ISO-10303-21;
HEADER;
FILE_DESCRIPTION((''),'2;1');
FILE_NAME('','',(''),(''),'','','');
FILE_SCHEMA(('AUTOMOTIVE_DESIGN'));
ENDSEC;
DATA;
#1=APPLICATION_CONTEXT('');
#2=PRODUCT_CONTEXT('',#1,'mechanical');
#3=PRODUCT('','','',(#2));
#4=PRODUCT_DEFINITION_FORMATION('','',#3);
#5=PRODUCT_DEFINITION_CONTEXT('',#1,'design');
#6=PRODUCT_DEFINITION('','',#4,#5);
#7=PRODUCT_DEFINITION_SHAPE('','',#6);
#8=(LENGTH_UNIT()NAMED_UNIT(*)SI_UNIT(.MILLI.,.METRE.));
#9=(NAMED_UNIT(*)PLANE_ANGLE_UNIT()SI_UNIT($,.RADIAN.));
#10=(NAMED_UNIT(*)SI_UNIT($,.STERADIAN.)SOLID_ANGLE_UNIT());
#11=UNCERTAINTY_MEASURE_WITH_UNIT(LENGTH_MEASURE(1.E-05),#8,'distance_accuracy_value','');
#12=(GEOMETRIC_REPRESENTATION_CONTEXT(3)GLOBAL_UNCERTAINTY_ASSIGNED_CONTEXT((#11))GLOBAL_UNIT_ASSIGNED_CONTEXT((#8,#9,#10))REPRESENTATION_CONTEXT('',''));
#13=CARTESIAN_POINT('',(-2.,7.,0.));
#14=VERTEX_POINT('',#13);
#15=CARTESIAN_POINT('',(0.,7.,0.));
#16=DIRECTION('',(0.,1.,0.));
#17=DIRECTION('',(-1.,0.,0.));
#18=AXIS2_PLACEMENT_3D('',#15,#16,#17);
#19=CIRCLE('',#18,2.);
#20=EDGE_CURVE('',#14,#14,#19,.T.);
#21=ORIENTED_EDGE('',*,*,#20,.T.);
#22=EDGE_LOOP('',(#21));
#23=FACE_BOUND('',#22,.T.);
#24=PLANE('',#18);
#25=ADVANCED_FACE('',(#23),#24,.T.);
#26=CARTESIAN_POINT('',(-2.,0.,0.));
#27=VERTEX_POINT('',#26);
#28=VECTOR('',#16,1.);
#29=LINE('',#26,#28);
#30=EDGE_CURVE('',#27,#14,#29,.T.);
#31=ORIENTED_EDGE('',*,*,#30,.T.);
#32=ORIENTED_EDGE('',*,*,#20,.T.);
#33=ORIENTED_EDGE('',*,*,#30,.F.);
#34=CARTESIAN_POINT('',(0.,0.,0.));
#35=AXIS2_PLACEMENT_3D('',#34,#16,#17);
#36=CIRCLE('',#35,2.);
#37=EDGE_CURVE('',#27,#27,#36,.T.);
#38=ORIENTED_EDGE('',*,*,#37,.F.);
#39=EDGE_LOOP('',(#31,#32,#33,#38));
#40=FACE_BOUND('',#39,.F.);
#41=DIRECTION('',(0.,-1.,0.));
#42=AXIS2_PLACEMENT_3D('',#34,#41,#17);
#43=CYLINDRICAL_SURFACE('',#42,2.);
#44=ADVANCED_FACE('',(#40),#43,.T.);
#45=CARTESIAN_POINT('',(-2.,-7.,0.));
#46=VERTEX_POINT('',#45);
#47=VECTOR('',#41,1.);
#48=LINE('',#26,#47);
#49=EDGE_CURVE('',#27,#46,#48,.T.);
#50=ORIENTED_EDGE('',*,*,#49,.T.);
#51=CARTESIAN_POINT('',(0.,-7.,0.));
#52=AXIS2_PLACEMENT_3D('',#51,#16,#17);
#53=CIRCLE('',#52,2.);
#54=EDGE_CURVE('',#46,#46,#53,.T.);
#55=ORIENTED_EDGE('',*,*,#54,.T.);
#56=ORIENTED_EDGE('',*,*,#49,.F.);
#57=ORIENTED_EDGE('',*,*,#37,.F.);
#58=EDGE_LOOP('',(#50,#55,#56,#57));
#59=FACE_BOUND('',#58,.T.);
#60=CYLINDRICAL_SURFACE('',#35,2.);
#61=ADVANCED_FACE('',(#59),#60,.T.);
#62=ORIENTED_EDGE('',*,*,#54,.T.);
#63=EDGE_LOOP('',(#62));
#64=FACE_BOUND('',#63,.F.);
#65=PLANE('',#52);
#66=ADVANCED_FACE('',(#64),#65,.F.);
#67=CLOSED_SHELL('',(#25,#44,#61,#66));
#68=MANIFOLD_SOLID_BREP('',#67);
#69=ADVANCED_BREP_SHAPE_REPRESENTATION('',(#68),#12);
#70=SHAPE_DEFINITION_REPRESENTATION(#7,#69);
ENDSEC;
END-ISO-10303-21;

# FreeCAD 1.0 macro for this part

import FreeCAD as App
import Part
import Sketcher

V = App.Vector

doc = App.newDocument("Part")
body = doc.addObject("PartDesign::Body", "Body")

# Sketch on XZ plane
sketch1 = doc.addObject("Sketcher::SketchObject", "Sketch")
body.addObject(sketch1)
sketch1.AttachmentSupport = (doc.XZ_Plane, [""])
sketch1.MapMode = "FlatFace"
sketch1.addGeometry(Part.Circle(V(0, 0, 0), V(0, 0, 1), 2), False)
sketch1.addConstraint(Sketcher.Constraint("Coincident", 0, 3, -1, 1))
sketch1.addConstraint(Sketcher.Constraint("Diameter", 0, 4.0))
pad1 = doc.addObject("PartDesign::Pad", "Pad")
body.addObject(pad1)
pad1.Profile = sketch1
pad1.Length = 14
pad1.Midplane = True

doc.recompute()
